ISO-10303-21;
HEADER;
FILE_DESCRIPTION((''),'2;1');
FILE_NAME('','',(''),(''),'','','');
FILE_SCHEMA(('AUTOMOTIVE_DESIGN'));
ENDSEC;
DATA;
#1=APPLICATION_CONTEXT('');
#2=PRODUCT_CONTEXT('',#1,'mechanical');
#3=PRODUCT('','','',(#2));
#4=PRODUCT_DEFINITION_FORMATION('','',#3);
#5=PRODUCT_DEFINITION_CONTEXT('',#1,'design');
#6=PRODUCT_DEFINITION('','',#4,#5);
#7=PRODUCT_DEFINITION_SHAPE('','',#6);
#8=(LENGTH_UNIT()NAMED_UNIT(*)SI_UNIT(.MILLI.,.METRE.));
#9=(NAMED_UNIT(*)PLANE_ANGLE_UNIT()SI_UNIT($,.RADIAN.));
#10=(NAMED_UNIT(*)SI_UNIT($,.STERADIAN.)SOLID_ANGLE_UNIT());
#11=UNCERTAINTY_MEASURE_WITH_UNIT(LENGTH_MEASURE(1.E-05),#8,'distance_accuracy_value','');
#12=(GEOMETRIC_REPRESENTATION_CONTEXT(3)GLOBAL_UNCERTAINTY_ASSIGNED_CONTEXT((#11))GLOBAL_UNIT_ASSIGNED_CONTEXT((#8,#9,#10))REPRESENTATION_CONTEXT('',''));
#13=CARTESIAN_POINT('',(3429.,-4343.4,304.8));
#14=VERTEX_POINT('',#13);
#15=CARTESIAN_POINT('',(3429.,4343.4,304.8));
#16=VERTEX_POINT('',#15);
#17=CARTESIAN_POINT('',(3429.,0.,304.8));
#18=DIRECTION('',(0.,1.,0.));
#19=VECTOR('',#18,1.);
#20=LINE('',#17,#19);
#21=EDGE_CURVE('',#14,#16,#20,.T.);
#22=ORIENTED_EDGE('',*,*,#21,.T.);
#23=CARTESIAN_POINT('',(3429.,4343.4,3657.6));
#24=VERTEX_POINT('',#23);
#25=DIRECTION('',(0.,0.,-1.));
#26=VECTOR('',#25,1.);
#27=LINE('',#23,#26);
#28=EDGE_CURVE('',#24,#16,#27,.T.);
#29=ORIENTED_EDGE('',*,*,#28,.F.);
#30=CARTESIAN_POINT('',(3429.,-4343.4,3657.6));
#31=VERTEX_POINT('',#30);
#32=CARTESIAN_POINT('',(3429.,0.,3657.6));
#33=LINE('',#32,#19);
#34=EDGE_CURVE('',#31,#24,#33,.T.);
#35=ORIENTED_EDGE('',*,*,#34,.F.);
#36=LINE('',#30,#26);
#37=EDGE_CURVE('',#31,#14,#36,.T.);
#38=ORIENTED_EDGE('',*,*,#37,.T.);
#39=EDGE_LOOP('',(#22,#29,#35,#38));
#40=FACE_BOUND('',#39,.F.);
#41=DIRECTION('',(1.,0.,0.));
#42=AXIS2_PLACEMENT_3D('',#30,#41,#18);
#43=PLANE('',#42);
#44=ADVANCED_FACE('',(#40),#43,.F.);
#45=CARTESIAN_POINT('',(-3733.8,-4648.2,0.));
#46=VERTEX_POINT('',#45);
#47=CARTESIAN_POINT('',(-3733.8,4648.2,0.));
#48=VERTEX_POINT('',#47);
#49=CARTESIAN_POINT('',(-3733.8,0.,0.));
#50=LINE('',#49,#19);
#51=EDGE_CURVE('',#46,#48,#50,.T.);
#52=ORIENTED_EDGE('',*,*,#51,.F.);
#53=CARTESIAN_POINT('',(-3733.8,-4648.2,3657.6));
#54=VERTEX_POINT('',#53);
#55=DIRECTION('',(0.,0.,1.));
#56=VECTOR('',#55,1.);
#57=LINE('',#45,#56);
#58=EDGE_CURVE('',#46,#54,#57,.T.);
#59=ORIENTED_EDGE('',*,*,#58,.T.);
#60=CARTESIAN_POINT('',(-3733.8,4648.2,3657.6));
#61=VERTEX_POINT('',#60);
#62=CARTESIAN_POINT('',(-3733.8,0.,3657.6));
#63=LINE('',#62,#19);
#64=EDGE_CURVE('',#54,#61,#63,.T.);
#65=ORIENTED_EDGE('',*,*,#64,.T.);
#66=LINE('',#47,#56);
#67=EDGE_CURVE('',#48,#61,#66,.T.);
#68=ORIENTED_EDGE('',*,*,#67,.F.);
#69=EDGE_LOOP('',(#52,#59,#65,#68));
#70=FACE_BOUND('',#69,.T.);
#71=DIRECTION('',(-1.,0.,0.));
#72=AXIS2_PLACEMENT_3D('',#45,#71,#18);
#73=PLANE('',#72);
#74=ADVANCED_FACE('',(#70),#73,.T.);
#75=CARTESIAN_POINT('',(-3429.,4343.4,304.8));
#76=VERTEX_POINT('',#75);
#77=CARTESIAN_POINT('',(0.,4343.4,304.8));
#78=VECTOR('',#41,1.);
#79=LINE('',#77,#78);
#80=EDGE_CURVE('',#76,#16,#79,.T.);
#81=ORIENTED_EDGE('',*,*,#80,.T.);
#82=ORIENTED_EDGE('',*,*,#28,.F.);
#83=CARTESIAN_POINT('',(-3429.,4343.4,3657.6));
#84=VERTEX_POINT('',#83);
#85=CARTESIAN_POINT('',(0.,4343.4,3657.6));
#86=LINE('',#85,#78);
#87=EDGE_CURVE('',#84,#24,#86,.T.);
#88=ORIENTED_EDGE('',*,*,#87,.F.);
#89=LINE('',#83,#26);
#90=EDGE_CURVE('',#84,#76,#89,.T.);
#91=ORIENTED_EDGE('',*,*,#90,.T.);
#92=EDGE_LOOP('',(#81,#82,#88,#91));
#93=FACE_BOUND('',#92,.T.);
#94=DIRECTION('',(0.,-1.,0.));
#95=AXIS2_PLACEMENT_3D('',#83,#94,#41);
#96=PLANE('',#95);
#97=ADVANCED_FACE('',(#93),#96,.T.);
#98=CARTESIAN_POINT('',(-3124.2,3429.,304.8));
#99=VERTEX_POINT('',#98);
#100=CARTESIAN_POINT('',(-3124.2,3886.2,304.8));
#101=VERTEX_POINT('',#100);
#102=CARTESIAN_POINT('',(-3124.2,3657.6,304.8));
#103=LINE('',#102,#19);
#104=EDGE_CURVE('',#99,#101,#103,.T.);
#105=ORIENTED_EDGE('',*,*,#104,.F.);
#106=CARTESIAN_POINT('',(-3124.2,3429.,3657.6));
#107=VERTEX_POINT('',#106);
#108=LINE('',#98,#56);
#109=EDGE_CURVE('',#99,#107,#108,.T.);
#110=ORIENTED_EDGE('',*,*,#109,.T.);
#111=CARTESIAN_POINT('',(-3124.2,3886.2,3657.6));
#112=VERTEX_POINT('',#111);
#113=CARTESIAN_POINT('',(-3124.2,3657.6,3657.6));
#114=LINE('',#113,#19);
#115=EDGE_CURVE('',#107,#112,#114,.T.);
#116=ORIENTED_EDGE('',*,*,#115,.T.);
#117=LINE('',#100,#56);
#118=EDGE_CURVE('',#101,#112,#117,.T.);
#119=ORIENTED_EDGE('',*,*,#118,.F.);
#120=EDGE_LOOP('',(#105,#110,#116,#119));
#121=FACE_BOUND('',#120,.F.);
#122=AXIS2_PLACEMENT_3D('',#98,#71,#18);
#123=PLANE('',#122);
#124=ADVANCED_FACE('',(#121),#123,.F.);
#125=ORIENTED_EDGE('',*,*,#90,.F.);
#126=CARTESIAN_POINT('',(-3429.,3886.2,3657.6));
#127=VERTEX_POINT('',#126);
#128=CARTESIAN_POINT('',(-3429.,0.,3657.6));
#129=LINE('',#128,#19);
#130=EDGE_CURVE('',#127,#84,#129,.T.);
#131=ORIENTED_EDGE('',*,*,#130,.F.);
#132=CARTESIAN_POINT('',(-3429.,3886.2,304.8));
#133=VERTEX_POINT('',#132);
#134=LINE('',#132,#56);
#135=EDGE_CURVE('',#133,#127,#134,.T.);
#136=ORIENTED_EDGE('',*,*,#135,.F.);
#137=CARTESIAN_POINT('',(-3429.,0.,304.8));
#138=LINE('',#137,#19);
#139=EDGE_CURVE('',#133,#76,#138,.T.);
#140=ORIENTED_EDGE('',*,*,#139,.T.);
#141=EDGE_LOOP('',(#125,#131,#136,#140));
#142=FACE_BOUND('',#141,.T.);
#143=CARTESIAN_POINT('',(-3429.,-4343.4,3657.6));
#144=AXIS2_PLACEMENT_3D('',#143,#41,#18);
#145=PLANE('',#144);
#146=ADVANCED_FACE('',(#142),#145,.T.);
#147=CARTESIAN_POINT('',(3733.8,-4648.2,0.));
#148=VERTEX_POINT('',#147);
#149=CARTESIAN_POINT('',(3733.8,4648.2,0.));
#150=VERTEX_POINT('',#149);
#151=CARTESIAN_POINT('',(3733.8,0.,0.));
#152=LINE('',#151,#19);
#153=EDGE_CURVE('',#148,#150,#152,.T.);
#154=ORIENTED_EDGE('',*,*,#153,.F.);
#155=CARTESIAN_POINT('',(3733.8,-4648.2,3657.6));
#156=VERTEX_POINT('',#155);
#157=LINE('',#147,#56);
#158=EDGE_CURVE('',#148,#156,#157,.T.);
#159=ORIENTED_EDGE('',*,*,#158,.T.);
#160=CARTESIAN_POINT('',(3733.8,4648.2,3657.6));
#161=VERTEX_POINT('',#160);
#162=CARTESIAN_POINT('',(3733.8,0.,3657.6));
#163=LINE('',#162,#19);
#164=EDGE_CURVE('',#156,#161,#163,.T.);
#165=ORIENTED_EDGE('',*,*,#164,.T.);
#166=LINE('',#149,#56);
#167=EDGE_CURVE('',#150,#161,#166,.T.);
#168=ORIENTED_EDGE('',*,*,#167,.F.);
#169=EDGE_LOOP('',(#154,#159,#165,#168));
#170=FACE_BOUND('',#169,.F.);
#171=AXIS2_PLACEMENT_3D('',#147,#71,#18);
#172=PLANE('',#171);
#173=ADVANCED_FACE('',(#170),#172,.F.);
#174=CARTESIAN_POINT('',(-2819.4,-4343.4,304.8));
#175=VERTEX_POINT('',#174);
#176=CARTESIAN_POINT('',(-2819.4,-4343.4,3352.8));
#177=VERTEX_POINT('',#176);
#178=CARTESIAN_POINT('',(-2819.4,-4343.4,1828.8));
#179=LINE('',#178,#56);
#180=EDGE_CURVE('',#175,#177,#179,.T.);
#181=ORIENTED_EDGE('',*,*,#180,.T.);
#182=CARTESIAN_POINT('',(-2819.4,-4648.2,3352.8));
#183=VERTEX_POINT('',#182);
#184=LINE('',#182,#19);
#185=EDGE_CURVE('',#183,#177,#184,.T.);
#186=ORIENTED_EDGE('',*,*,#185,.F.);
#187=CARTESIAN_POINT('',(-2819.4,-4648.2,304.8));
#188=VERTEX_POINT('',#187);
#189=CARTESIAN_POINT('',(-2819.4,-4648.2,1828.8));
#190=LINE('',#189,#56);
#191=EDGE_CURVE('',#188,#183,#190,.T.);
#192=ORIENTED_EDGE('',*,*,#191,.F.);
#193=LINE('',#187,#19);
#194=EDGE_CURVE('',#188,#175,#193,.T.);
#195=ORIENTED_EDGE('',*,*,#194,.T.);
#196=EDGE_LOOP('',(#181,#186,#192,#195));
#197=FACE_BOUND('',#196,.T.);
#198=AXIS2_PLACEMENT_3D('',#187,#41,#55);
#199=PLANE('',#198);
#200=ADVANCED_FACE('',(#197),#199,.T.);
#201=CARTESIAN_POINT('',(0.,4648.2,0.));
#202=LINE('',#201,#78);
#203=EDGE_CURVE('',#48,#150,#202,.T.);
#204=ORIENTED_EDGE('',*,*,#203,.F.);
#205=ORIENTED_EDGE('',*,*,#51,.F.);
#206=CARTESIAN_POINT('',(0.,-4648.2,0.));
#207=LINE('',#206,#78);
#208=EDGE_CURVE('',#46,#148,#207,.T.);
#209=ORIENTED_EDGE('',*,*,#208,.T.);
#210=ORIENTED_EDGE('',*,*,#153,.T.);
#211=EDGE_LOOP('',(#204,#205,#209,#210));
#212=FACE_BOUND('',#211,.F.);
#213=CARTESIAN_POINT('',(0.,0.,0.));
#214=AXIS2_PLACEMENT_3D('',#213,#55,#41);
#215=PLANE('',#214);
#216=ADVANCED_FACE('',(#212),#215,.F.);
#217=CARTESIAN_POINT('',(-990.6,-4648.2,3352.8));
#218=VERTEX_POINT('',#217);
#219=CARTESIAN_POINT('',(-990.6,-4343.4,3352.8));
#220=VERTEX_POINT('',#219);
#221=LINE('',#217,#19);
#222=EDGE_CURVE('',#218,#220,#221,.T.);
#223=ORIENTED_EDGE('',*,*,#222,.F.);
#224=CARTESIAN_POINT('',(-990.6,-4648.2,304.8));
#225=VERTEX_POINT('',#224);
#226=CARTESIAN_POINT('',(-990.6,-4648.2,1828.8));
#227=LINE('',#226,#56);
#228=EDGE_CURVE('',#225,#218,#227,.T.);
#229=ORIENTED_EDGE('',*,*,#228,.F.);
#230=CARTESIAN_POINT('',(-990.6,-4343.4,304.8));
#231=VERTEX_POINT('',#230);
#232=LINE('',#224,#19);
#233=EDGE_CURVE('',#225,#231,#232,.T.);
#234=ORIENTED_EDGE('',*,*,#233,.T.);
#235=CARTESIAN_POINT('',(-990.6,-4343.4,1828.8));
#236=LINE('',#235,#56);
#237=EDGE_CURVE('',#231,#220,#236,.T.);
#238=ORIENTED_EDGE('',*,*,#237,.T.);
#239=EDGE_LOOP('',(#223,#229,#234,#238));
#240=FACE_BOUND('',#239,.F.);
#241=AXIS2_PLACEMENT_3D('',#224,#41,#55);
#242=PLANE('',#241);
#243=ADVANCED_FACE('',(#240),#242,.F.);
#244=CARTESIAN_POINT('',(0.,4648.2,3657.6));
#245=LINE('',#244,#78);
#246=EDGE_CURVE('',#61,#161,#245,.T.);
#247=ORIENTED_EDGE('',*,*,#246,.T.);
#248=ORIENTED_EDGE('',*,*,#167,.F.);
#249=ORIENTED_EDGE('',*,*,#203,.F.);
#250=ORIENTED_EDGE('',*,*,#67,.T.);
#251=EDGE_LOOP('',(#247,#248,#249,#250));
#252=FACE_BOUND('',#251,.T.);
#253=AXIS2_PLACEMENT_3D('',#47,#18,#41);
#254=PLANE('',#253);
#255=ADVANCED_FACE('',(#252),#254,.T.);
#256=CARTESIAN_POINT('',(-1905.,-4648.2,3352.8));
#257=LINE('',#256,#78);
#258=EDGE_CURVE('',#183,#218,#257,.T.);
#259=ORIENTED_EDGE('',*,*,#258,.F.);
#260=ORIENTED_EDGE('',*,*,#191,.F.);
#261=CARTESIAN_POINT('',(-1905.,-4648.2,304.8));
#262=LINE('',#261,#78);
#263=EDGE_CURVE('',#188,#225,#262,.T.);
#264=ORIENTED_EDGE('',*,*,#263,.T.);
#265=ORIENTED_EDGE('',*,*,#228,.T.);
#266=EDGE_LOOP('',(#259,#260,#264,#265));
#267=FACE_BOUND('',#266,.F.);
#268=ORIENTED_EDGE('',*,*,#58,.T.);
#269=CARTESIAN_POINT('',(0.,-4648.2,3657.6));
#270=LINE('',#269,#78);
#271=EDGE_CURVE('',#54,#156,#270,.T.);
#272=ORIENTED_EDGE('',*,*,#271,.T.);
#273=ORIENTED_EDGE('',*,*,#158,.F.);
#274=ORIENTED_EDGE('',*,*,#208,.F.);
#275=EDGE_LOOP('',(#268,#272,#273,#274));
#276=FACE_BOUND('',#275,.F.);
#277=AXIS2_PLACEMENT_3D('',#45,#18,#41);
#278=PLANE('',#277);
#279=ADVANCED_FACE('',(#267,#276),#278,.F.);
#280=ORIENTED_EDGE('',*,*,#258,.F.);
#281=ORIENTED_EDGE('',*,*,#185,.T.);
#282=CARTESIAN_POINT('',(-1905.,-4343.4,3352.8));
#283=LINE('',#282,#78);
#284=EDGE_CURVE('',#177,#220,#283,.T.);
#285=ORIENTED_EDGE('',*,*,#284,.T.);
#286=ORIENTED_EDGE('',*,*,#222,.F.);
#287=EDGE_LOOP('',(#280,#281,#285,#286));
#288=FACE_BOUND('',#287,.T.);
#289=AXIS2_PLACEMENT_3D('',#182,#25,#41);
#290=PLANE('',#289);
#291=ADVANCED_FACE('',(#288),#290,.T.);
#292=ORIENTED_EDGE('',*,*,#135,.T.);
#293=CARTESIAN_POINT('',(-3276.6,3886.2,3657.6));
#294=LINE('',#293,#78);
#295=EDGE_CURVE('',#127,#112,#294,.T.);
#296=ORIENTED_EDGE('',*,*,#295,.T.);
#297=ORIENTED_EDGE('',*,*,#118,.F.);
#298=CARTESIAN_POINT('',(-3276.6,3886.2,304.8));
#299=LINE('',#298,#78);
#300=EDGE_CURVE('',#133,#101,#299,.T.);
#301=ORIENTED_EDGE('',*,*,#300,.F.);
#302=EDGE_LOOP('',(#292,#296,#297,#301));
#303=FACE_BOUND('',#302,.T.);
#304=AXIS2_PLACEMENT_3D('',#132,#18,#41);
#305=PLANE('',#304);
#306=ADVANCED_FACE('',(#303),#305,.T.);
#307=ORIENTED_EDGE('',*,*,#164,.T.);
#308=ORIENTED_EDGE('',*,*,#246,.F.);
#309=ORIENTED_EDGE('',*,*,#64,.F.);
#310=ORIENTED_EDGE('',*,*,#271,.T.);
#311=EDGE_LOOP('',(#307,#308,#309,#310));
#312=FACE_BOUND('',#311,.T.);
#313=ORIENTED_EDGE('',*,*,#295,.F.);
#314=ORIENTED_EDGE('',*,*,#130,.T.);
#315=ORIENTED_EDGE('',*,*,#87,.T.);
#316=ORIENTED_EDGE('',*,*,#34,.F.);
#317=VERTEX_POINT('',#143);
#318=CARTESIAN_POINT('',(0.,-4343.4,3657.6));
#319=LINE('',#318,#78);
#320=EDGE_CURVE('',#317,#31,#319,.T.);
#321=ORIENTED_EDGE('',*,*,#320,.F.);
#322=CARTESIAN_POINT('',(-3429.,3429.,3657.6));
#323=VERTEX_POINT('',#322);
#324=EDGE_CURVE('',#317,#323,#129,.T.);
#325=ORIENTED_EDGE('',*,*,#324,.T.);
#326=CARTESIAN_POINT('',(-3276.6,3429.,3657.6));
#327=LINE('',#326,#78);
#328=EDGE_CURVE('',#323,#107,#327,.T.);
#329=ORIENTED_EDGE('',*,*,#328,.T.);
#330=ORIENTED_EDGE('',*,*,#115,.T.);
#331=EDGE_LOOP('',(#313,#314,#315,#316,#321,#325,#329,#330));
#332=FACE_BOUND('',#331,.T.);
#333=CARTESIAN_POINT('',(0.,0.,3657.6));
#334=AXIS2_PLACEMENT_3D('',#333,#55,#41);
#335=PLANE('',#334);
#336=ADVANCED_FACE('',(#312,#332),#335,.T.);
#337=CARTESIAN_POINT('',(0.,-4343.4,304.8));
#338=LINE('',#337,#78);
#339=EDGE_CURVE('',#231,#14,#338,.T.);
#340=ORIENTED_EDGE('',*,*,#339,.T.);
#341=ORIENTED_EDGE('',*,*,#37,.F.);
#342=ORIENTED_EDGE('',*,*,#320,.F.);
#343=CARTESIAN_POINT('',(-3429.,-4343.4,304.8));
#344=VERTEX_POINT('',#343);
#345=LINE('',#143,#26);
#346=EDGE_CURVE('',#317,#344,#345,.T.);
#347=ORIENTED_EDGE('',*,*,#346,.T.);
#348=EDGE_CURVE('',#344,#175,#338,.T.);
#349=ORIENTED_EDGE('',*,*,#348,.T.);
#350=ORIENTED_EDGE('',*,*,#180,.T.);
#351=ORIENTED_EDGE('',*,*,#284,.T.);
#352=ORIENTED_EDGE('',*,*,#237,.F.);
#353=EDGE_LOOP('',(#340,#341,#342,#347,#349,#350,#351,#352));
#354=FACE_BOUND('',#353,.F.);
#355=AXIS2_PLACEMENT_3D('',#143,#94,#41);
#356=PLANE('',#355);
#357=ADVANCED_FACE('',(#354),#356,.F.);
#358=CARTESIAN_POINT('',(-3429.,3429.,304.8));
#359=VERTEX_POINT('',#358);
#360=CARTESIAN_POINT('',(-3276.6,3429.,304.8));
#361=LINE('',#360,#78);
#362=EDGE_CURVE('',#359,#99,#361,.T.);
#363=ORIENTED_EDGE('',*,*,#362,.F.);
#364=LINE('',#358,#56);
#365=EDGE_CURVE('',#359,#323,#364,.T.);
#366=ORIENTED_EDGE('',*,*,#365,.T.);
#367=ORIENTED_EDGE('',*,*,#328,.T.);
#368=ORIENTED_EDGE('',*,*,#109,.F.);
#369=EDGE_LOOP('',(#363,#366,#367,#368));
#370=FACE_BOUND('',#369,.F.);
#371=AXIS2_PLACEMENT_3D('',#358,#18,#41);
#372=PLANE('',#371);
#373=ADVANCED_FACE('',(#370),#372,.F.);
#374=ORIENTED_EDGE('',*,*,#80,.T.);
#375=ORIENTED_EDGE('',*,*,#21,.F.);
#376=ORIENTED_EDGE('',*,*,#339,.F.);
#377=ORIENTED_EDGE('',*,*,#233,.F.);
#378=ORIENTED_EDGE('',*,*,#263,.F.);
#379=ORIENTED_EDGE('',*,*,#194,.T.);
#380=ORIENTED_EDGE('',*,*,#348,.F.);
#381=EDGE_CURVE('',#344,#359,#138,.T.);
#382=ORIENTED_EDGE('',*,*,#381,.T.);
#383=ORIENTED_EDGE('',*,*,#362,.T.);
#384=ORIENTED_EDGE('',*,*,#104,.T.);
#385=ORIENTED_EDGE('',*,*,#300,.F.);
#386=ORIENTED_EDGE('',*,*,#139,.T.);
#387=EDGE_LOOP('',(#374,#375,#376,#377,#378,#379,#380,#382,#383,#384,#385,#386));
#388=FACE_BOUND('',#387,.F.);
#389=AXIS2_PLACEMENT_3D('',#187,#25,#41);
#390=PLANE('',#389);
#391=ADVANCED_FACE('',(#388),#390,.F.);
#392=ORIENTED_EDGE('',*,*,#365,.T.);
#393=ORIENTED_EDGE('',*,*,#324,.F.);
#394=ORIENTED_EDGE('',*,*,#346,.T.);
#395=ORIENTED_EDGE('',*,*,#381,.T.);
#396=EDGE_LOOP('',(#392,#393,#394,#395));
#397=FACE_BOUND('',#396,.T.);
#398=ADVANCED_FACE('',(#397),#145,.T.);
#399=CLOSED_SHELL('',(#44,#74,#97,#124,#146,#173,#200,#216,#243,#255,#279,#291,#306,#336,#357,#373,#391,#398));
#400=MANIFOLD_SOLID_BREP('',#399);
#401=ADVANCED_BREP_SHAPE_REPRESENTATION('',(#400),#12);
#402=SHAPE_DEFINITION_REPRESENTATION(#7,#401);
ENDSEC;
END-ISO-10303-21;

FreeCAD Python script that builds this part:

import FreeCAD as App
import Part
import Sketcher

V = App.Vector
Q = App.Units.Quantity


def add_polygon(sketch, points):
    """Adds a closed chain of lines whose ends are joined by coincident constraints."""
    first, n = sketch.GeometryCount, len(points)
    for a, b in zip(points, points[1:] + points[:1]):
        sketch.addGeometry(Part.LineSegment(App.Vector(*a, 0), App.Vector(*b, 0)), False)
    for i in range(n):
        sketch.addConstraint(Sketcher.Constraint("Coincident", first + i, 2, first + (i + 1) % n, 1))

doc = App.newDocument("Part")
body = doc.addObject("PartDesign::Body", "Body")

# Sketch on XY plane
sketch1 = body.newObject("Sketcher::SketchObject", "Sketch")
sketch1.AttachmentSupport = (doc.getObject("XY_Plane"), [""])
sketch1.MapMode = "FlatFace"
add_polygon(sketch1, [(-3734, 4648), (-3734, -4648), (3734, -4648), (3734, 4648)])  # lines 0-3
sketch1.addConstraint([
    Sketcher.Constraint("Vertical", 0),
    Sketcher.Constraint("Horizontal", 1),
    Sketcher.Constraint("Vertical", 2),
    Sketcher.Constraint("Horizontal", 3),
    Sketcher.Constraint("Symmetric", 0, 2, 2, 2, -1, 1),
    Sketcher.Constraint("DistanceX", 1, 1, 1, 2, Q("294 in")),
    Sketcher.Constraint("DistanceY", 0, 2, 0, 1, Q("366 in")),
])
pad1 = body.newObject("PartDesign::Pad", "Pad")
pad1.Profile = sketch1
pad1.Length = Q("144 in")

# Sketch on XY plane
sketch2 = body.newObject("Sketcher::SketchObject", "Sketch001")
sketch2.AttachmentSupport = (doc.getObject("XY_Plane"), [""])
sketch2.MapMode = "FlatFace"
sketch2.AttachmentOffset = App.Placement(V(0, 0, 144 * 25.4), App.Rotation())
add_polygon(sketch2, [(-3429, 4343), (-3429, -4343), (3429, -4343), (3429, 4343)])  # lines 0-3
sketch2.addConstraint([
    Sketcher.Constraint("Vertical", 0),
    Sketcher.Constraint("Horizontal", 1),
    Sketcher.Constraint("Vertical", 2),
    Sketcher.Constraint("Horizontal", 3),
    Sketcher.Constraint("Symmetric", 0, 2, 2, 2, -1, 1),
    Sketcher.Constraint("DistanceX", 1, 1, 1, 2, Q("270 in")),
    Sketcher.Constraint("DistanceY", 0, 2, 0, 1, Q("342 in")),
])
pocket1 = body.newObject("PartDesign::Pocket", "Pocket")
pocket1.Profile = sketch2
pocket1.Length = Q("132 in")

# Sketch on XZ plane
sketch3 = body.newObject("Sketcher::SketchObject", "Sketch002")
sketch3.AttachmentSupport = (doc.getObject("XZ_Plane"), [""])
sketch3.MapMode = "FlatFace"
sketch3.AttachmentOffset = App.Placement(V(0, 0, 183 * 25.4), App.Rotation())
add_polygon(sketch3, [(-2819, 3353), (-2819, 305), (-991, 305), (-991, 3353)])  # lines 0-3
sketch3.addConstraint([
    Sketcher.Constraint("Vertical", 0),
    Sketcher.Constraint("Horizontal", 1),
    Sketcher.Constraint("Vertical", 2),
    Sketcher.Constraint("Horizontal", 3),
    Sketcher.Constraint("DistanceX", 1, 1, 1, 2, Q("72 in")),
    Sketcher.Constraint("DistanceY", 0, 2, 0, 1, Q("120 in")),
    Sketcher.Constraint("DistanceX", 0, 2, -1, 1, Q("111 in")),
    Sketcher.Constraint("DistanceY", -1, 1, 0, 2, Q("12 in")),
])
pocket2 = body.newObject("PartDesign::Pocket", "Pocket001")
pocket2.Profile = sketch3
pocket2.Length = Q("12 in")

# Sketch on XY plane
sketch4 = body.newObject("Sketcher::SketchObject", "Sketch003")
sketch4.AttachmentSupport = (doc.getObject("XY_Plane"), [""])
sketch4.MapMode = "FlatFace"
sketch4.AttachmentOffset = App.Placement(V(0, 0, 12 * 25.4), App.Rotation())
add_polygon(sketch4, [(-3429, 3886), (-3429, 3429), (-3124, 3429), (-3124, 3886)])  # lines 0-3
sketch4.addConstraint([
    Sketcher.Constraint("Vertical", 0),
    Sketcher.Constraint("Horizontal", 1),
    Sketcher.Constraint("Vertical", 2),
    Sketcher.Constraint("Horizontal", 3),
    Sketcher.Constraint("DistanceX", 1, 1, 1, 2, Q("12 in")),
    Sketcher.Constraint("DistanceY", 0, 2, 0, 1, Q("18 in")),
    Sketcher.Constraint("DistanceX", 0, 2, -1, 1, Q("135 in")),
    Sketcher.Constraint("DistanceY", -1, 1, 0, 2, Q("135 in")),
])
pad2 = body.newObject("PartDesign::Pad", "Pad001")
pad2.Profile = sketch4
pad2.Length = Q("132 in")

doc.recompute()
